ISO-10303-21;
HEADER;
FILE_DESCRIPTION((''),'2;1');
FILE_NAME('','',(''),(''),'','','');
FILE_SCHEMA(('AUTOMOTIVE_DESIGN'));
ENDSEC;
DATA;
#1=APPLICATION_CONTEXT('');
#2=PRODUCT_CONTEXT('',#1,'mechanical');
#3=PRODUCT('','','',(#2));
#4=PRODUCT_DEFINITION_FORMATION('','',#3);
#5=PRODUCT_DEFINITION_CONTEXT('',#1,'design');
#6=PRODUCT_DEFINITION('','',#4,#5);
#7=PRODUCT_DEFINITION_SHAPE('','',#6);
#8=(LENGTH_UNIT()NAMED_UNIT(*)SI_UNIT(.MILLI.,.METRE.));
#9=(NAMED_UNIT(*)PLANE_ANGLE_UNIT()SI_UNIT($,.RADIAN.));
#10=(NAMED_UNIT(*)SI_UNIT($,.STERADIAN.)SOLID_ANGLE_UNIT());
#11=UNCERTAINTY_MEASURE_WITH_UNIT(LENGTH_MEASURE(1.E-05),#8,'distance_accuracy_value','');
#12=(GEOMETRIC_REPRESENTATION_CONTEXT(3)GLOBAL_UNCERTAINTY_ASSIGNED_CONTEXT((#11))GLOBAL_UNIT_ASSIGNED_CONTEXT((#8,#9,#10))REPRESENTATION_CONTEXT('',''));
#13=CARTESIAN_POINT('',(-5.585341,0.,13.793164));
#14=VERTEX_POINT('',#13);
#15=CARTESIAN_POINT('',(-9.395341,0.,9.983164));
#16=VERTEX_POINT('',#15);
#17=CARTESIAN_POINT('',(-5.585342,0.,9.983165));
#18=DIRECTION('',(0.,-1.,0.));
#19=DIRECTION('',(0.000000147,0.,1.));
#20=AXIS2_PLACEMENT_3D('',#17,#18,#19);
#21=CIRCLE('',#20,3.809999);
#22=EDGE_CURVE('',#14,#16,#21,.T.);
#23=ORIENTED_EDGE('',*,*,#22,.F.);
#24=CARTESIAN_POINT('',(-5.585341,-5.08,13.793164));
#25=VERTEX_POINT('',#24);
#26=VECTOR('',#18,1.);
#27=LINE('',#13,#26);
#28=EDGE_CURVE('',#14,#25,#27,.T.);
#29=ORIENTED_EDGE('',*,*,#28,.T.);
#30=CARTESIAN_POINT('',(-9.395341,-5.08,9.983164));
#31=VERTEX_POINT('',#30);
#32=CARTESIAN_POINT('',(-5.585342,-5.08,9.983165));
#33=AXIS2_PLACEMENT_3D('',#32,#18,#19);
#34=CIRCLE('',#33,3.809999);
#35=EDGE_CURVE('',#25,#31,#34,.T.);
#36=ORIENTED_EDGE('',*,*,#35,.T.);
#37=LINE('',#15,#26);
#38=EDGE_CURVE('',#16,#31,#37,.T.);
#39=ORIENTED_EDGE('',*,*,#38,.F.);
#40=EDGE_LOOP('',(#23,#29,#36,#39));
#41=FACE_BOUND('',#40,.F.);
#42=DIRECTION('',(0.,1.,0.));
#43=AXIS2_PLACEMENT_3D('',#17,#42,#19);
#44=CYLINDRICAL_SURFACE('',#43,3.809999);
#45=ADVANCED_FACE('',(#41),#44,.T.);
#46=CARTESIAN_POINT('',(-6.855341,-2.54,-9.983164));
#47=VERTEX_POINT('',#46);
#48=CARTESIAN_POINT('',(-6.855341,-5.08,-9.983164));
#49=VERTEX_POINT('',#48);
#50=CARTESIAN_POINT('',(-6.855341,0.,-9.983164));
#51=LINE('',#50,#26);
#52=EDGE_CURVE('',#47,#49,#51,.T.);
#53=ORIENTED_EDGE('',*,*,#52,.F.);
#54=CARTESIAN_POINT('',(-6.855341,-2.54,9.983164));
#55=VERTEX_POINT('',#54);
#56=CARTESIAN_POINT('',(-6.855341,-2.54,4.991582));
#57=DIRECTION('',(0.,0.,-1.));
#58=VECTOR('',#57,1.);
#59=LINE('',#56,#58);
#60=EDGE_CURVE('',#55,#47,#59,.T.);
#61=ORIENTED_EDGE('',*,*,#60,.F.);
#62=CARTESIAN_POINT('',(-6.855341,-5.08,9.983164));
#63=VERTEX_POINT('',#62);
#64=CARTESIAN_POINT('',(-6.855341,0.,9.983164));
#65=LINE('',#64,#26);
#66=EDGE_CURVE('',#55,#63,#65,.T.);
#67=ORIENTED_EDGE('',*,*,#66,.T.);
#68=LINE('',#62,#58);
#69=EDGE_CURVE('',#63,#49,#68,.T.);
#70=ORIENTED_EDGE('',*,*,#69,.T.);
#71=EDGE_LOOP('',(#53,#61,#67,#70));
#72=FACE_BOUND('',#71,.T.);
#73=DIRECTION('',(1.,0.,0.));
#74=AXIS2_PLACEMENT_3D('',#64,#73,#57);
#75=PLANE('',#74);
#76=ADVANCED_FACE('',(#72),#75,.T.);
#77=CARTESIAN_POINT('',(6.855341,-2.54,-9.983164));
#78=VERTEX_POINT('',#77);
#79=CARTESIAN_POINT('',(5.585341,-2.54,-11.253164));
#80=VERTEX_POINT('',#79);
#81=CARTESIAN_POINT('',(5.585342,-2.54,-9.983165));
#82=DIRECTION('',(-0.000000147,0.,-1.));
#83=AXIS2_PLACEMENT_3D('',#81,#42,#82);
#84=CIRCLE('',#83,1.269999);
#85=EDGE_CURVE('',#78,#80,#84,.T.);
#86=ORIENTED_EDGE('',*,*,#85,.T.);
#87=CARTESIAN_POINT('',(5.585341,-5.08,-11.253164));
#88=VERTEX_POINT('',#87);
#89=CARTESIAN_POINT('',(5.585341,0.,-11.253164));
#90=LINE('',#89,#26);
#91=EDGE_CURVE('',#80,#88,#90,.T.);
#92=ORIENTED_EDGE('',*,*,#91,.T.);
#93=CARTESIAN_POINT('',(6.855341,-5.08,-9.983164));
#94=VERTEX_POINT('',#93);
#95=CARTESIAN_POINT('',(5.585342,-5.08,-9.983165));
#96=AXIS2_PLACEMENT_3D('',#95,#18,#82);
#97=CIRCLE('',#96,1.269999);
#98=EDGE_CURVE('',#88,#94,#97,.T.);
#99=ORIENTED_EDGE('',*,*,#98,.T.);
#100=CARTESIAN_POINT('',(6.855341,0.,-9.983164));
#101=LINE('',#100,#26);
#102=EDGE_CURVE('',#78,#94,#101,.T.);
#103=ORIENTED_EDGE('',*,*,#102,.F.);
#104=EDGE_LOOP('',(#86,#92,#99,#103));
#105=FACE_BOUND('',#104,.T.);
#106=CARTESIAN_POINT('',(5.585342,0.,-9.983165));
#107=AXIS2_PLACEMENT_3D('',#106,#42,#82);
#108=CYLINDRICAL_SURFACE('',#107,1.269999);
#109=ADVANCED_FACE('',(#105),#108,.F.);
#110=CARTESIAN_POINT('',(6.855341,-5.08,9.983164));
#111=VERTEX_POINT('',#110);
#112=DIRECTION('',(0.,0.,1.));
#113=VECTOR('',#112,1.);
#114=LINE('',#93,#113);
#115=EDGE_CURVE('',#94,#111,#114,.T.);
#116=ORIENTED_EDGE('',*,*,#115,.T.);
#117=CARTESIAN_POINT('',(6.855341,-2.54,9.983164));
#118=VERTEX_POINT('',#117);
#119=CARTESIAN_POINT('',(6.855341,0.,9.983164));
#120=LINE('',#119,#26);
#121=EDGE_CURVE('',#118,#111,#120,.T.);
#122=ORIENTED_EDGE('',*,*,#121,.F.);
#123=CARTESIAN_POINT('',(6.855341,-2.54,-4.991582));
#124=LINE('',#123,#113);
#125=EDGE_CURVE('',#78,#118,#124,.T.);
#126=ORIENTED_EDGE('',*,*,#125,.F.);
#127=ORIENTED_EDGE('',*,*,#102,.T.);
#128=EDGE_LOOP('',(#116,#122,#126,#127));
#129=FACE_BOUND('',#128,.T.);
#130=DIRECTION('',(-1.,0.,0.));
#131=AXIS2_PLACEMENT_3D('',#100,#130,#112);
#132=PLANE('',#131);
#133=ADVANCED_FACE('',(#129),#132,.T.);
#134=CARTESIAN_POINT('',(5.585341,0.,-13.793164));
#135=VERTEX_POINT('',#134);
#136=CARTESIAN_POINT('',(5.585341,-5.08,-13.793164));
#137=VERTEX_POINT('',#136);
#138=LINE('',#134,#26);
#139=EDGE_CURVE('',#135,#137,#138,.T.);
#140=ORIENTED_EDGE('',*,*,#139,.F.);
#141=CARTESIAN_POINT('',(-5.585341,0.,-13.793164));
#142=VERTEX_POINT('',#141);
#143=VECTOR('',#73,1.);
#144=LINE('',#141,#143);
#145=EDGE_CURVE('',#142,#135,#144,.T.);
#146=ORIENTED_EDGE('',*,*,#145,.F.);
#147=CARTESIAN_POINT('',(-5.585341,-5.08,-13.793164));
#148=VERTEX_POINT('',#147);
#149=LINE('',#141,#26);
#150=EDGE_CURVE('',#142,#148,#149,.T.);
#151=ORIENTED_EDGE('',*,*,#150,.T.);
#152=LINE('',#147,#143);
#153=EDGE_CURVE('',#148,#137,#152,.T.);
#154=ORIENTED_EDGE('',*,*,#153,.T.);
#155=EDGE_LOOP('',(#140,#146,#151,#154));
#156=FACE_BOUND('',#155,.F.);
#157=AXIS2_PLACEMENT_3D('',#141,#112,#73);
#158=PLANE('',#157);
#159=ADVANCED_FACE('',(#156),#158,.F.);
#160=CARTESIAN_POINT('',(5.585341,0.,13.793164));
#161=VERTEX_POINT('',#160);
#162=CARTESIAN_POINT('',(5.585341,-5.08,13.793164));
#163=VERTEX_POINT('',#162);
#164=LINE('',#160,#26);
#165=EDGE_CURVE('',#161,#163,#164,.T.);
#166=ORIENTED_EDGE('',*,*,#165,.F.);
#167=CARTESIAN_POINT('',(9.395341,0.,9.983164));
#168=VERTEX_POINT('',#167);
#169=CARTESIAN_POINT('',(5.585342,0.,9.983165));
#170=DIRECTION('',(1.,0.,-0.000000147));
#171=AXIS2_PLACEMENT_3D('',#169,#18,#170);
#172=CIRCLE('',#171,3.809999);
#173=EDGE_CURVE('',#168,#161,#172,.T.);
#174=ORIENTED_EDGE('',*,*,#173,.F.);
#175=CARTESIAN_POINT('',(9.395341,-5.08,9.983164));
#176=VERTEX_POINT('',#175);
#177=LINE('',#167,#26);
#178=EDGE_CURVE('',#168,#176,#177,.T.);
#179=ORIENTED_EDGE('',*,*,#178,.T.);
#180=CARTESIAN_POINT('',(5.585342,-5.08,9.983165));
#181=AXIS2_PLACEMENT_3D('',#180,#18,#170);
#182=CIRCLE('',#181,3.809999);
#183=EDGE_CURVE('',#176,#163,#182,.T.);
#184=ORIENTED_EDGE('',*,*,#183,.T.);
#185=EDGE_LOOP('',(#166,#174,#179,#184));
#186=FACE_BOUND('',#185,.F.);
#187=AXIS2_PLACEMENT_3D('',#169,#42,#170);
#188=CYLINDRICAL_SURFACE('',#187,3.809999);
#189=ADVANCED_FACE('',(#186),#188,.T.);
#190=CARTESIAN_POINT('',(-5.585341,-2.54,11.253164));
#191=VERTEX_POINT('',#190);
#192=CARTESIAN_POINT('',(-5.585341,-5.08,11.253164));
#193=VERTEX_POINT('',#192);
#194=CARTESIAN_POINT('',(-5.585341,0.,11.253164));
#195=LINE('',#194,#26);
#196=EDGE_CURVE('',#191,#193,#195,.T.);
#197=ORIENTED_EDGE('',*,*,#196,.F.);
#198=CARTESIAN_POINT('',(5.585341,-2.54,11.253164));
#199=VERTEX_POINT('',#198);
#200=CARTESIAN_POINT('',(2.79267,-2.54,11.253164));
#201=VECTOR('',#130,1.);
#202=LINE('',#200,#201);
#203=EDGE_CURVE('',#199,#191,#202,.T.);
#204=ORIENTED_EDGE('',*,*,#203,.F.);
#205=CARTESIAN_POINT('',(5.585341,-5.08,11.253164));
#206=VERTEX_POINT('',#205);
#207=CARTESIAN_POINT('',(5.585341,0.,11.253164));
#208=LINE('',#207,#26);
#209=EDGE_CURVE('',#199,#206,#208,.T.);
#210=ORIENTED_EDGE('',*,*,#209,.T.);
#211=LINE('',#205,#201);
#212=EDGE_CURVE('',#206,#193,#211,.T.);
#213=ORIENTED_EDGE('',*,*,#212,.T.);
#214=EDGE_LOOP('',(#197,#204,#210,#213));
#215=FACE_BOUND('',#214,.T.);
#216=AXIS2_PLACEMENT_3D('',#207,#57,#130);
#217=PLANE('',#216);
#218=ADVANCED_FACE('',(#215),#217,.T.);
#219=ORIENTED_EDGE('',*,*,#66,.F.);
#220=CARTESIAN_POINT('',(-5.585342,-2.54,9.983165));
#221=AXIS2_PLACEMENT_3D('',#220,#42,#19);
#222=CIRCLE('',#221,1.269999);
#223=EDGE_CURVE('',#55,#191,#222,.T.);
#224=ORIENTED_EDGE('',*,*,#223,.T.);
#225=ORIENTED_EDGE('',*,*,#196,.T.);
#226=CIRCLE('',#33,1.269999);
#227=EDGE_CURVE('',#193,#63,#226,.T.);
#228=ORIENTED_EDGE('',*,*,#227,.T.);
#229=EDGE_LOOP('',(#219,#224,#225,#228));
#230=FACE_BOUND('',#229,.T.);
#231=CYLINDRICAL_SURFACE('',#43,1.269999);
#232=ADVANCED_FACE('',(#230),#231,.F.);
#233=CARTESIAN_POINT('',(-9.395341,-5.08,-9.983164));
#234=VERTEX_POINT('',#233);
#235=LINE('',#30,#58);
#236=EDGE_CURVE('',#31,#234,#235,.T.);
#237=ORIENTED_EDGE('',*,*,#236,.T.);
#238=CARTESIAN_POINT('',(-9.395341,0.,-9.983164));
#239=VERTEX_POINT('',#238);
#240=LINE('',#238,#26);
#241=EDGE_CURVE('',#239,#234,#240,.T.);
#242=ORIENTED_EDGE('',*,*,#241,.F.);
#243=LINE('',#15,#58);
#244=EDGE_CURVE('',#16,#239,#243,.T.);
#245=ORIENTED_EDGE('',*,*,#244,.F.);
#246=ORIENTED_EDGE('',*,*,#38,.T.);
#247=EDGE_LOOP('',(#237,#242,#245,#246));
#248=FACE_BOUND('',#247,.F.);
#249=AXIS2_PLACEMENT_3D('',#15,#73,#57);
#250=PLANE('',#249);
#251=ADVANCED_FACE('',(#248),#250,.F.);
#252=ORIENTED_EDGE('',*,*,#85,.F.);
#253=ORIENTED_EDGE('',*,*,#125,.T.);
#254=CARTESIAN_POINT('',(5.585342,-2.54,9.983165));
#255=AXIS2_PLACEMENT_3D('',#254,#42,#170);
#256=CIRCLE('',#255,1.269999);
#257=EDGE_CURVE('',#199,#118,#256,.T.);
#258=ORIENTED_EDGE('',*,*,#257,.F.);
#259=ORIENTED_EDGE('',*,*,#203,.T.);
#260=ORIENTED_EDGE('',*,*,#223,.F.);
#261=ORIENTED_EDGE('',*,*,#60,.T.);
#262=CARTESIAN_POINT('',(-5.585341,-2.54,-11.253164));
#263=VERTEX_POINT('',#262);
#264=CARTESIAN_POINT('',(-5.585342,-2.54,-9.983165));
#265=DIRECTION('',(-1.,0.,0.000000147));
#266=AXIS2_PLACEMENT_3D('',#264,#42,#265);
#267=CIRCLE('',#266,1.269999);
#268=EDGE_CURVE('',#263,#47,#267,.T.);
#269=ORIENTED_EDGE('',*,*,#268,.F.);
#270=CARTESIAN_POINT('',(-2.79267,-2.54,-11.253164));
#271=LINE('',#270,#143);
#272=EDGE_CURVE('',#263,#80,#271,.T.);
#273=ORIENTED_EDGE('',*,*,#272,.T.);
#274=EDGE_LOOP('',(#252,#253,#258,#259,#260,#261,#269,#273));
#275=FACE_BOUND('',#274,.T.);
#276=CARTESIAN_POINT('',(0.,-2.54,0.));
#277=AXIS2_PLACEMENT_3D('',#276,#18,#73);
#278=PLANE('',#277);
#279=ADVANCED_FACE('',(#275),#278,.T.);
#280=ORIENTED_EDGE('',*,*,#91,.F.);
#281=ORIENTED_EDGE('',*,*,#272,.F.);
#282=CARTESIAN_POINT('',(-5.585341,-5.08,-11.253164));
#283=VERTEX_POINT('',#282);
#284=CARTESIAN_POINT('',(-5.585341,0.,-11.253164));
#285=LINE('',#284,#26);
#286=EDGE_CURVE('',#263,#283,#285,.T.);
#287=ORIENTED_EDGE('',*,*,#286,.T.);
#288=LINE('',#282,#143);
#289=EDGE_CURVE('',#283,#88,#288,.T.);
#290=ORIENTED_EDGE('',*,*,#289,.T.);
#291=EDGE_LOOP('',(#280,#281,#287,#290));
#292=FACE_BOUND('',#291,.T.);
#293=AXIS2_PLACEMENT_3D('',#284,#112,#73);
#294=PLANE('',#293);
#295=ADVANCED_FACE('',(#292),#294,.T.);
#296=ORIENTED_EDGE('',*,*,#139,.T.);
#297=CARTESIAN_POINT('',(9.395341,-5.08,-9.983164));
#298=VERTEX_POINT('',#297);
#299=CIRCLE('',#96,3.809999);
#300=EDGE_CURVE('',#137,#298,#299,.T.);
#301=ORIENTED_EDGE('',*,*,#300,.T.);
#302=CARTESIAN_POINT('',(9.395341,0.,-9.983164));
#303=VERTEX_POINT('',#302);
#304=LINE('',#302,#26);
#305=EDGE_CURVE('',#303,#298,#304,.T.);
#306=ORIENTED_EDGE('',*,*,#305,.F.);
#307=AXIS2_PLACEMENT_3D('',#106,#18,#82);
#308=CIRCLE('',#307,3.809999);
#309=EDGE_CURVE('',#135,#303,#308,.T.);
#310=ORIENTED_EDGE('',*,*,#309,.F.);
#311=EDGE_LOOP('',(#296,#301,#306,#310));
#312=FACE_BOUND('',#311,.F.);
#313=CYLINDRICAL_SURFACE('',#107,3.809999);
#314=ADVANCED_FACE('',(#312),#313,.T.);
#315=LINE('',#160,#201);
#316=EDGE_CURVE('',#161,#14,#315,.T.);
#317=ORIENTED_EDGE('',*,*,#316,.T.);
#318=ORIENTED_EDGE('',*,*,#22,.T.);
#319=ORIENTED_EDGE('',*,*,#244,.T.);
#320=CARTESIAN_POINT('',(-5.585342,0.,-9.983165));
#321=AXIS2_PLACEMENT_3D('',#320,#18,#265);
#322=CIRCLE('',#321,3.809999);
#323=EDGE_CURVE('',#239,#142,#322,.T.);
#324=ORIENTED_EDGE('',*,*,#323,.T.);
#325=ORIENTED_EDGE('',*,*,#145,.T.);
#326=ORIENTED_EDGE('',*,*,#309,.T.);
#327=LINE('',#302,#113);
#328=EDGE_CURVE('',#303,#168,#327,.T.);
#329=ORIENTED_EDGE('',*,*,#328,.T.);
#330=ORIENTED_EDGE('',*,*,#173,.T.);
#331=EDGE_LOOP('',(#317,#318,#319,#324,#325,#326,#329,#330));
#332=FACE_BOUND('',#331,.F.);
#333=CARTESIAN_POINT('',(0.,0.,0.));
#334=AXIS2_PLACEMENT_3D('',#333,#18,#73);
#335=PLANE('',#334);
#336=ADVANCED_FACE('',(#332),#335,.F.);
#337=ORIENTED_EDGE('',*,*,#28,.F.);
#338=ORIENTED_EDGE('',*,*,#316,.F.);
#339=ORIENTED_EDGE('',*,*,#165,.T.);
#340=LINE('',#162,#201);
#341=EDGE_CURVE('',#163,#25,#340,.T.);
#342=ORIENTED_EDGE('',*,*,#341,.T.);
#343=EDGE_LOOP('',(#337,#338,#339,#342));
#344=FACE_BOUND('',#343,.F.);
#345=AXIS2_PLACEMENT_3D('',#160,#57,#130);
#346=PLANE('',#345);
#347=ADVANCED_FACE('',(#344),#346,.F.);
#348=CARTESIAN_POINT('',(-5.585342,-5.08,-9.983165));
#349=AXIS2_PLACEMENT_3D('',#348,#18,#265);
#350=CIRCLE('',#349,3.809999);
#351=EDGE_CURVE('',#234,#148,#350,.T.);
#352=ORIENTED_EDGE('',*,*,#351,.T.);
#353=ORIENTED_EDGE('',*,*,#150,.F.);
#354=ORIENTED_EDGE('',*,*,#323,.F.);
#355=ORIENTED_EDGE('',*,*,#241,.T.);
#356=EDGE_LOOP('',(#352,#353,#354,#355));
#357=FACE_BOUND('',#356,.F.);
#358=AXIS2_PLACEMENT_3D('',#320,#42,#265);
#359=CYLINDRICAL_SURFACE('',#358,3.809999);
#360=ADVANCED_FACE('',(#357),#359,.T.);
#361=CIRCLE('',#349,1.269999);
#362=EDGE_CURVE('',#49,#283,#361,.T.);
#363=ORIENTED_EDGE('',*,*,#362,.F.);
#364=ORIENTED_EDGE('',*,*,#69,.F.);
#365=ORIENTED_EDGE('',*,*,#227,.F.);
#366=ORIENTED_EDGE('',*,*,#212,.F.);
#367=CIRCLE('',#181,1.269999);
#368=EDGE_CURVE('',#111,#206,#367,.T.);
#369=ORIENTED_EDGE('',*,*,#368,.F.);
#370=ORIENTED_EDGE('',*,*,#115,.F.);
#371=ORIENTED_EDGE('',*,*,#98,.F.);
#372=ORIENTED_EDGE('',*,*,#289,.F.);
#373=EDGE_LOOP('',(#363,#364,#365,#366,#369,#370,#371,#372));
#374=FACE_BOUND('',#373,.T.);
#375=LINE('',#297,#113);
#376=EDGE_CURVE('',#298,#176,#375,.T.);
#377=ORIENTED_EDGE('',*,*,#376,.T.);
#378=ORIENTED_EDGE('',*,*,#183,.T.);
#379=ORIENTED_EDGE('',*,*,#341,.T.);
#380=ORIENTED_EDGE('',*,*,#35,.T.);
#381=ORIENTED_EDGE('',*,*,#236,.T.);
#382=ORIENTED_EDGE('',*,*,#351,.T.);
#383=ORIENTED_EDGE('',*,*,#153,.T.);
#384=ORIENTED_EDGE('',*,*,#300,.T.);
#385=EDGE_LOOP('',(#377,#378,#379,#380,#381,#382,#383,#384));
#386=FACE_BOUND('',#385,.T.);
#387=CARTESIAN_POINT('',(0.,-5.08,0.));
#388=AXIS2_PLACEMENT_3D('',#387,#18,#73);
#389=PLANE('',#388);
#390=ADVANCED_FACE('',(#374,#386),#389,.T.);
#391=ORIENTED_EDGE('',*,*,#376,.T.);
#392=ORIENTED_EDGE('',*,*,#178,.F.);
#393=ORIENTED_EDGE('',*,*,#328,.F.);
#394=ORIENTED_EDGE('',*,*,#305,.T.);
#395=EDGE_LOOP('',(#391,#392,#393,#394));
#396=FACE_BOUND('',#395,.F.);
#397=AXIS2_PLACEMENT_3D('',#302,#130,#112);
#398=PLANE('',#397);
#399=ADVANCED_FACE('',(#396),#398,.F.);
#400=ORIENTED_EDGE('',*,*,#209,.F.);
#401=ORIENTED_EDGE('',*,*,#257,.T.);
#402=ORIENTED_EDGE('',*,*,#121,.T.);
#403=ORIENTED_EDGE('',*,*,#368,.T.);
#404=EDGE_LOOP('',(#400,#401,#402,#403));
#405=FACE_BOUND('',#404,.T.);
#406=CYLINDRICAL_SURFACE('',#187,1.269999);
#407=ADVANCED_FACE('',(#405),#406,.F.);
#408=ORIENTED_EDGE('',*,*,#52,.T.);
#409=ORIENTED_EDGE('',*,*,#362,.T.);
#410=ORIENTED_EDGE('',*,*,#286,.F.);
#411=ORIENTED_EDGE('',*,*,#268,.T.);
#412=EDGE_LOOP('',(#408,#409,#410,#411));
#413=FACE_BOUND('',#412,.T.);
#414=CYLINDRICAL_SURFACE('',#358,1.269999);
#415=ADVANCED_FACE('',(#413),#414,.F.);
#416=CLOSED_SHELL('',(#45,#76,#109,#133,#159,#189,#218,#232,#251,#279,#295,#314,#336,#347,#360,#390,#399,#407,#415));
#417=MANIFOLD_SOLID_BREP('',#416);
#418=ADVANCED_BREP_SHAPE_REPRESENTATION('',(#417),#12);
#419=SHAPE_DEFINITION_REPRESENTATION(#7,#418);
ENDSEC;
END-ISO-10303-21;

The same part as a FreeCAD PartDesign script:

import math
import FreeCAD as App
import Part
import Sketcher
from FreeCAD import Vector
Q = App.Units.Quantity


def faces_at(feature, points):
    """Names of the faces that lie closest to the given points."""
    faces = feature.Shape.Faces
    near = lambda p: min(range(len(faces)), key=lambda i: faces[i].distToShape(Part.Vertex(*p))[0])
    return sorted({f"Face{near(p) + 1}" for p in points})

doc = App.newDocument("Part")
body = doc.addObject("PartDesign::Body", "Body")

sketch1 = doc.addObject("Sketcher::SketchObject", "Sketch")
body.addObject(sketch1)
sketch1.AttachmentSupport = (doc.XZ_Plane, [""])
sketch1.MapMode = "FlatFace"
sketch1.addGeometry(Part.LineSegment(Vector(-5.6, -13.8, 0), Vector(5.6, -13.8, 0)), False)
sketch1.addGeometry(Part.ArcOfCircle(Part.Circle(Vector(5.6, -10, 0), Vector(0, 0, 1), 3.8), math.radians(-90), math.radians(0)), False)
sketch1.addGeometry(Part.LineSegment(Vector(9.4, -10, 0), Vector(9.4, 10, 0)), False)
sketch1.addGeometry(Part.ArcOfCircle(Part.Circle(Vector(5.6, 10, 0), Vector(0, 0, 1), 3.8), math.radians(0), math.radians(90)), False)
sketch1.addGeometry(Part.LineSegment(Vector(5.6, 13.8, 0), Vector(-5.6, 13.8, 0)), False)
sketch1.addGeometry(Part.ArcOfCircle(Part.Circle(Vector(-5.6, 10, 0), Vector(0, 0, 1), 3.8), math.radians(90), math.radians(180)), False)
sketch1.addGeometry(Part.LineSegment(Vector(-9.4, 10, 0), Vector(-9.4, -10, 0)), False)
sketch1.addGeometry(Part.ArcOfCircle(Part.Circle(Vector(-5.6, -10, 0), Vector(0, 0, 1), 3.8), math.radians(180), math.radians(270)), False)
sketch1.addConstraint(Sketcher.Constraint("Tangent", 0, 2, 1, 1))
sketch1.addConstraint(Sketcher.Constraint("Tangent", 1, 2, 2, 1))
sketch1.addConstraint(Sketcher.Constraint("Tangent", 2, 2, 3, 1))
sketch1.addConstraint(Sketcher.Constraint("Tangent", 3, 2, 4, 1))
sketch1.addConstraint(Sketcher.Constraint("Tangent", 4, 2, 5, 1))
sketch1.addConstraint(Sketcher.Constraint("Tangent", 5, 2, 6, 1))
sketch1.addConstraint(Sketcher.Constraint("Tangent", 6, 2, 7, 1))
sketch1.addConstraint(Sketcher.Constraint("Tangent", 7, 2, 0, 1))
sketch1.addConstraint(Sketcher.Constraint("Horizontal", 0))
sketch1.addConstraint(Sketcher.Constraint("Vertical", 2))
sketch1.addConstraint(Sketcher.Constraint("Horizontal", 4))
sketch1.addConstraint(Sketcher.Constraint("Vertical", 6))
sketch1.addConstraint(Sketcher.Constraint("Equal", 1, 3))
sketch1.addConstraint(Sketcher.Constraint("Equal", 3, 5))
sketch1.addConstraint(Sketcher.Constraint("Equal", 5, 7))
sketch1.addConstraint(Sketcher.Constraint("Symmetric", 1, 3, 5, 3, -1, 1))
sketch1.addConstraint(Sketcher.Constraint("Radius", 1, Q("0.15 in")))
sketch1.addConstraint(Sketcher.Constraint("DistanceX", 0, 1, 0, 2, 11.170682))
sketch1.addConstraint(Sketcher.Constraint("DistanceY", 2, 1, 2, 2, 19.966328))
pad1 = doc.addObject("PartDesign::Pad", "Pad")
body.addObject(pad1)
pad1.Profile = sketch1
pad1.Length = Q("0.2 in")
doc.recompute()

thickness = doc.addObject("PartDesign::Thickness", "Thickness")
body.addObject(thickness)
thickness.Base = (pad1, faces_at(pad1, [(0, -5.08, 0)]))
thickness.Value = Q("0.1 in")
thickness.Reversed = True
thickness.Join = "Arc"

doc.recompute()
